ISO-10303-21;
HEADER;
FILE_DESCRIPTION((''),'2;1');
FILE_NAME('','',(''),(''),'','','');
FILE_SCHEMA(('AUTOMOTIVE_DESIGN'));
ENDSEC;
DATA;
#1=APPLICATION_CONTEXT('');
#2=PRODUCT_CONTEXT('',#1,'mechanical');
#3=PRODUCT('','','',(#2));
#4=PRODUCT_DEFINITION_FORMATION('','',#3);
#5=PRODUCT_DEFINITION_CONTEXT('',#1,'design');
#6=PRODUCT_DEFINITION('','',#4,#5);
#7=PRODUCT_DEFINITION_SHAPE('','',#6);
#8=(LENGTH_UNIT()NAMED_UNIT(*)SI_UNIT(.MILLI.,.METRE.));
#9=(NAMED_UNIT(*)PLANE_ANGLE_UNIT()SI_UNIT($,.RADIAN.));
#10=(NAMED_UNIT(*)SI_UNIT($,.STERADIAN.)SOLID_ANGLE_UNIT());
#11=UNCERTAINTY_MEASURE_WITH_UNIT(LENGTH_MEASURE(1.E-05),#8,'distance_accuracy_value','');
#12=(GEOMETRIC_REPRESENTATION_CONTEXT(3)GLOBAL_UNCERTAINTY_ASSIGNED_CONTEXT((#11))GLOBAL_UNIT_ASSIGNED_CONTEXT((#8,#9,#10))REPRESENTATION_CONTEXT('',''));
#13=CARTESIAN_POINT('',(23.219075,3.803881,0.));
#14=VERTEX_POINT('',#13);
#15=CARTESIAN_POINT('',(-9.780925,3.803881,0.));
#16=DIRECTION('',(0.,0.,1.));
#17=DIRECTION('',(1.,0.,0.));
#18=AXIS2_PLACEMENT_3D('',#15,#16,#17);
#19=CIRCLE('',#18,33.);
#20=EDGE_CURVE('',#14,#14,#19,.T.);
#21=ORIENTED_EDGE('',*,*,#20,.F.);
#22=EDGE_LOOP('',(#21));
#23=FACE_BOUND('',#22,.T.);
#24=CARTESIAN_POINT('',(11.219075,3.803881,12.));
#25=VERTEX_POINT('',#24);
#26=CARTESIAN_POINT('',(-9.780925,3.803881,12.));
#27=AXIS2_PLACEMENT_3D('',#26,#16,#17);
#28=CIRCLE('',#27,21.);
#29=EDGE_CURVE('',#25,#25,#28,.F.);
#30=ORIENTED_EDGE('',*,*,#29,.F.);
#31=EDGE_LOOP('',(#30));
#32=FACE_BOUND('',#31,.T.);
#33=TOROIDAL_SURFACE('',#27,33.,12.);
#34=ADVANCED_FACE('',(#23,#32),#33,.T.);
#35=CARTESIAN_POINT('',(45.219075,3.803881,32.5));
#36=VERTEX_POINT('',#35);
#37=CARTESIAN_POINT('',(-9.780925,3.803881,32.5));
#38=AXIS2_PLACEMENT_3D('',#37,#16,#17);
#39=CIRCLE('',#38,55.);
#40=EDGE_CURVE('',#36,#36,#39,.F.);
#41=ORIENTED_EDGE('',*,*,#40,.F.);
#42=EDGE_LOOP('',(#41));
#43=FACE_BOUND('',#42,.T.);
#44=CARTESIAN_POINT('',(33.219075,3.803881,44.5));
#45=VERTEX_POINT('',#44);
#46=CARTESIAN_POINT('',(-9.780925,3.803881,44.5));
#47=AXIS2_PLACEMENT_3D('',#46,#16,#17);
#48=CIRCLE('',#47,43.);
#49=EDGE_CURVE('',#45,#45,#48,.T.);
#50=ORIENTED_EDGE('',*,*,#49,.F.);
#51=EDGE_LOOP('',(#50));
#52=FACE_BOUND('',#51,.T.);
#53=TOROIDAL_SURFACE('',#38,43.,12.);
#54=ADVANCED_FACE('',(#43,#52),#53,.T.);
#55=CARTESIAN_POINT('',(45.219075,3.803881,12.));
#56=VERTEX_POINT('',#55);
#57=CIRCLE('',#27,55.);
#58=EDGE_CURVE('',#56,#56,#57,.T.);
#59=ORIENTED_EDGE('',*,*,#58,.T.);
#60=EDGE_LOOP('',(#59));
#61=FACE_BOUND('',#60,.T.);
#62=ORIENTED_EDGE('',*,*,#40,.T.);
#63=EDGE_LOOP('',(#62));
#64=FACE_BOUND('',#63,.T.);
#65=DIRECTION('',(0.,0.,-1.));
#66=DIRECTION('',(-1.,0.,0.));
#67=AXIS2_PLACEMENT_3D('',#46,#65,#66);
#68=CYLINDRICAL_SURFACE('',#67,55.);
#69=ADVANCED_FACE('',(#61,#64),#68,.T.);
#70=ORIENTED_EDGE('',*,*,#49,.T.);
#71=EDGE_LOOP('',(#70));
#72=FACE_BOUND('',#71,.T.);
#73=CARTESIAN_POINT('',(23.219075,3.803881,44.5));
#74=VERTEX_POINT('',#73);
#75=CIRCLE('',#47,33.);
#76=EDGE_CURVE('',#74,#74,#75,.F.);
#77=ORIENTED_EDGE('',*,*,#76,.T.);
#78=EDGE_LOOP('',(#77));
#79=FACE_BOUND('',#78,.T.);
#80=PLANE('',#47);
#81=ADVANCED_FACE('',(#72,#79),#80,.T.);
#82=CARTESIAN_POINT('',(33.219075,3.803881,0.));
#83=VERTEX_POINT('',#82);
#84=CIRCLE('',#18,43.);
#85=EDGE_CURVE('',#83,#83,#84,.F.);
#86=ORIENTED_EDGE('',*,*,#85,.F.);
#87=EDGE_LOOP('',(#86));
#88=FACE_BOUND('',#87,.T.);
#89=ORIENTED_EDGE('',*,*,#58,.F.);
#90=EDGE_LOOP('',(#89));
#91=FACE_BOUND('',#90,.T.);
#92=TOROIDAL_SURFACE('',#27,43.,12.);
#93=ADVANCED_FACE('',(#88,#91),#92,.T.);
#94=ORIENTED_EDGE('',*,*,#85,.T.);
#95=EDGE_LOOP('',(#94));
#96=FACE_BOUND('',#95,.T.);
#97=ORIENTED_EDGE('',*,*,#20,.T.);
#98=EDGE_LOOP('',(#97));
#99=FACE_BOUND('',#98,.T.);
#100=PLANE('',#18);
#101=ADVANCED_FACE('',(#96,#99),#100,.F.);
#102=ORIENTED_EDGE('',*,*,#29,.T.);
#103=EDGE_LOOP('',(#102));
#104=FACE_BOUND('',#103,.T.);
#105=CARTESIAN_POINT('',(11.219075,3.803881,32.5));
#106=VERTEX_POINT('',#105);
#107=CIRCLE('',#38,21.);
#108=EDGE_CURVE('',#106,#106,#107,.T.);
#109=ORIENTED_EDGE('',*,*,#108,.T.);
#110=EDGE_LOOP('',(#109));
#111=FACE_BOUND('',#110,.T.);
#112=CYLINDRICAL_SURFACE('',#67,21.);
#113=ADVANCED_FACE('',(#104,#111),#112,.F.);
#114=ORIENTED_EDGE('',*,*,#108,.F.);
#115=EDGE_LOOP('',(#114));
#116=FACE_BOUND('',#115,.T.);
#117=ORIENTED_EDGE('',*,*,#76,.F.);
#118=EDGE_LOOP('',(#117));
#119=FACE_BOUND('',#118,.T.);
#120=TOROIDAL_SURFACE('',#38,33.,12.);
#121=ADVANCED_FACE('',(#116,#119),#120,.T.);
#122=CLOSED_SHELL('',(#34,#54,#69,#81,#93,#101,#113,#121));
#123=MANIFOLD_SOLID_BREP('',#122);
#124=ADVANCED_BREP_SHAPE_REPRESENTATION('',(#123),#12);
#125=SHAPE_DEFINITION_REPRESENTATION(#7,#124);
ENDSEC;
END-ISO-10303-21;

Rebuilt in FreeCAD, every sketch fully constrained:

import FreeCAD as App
import Part
import Sketcher


def edges_at(feature, points):
    """Names of the edges that pass closest to the given points."""
    edges = feature.Shape.Edges
    near = lambda p: min(range(len(edges)), key=lambda i: edges[i].distToShape(Part.Vertex(*p))[0])
    return sorted({f"Edge{near(p) + 1}" for p in points})

doc = App.newDocument("Part")
body = doc.addObject("PartDesign::Body", "Body")

sketch1 = body.newObject("Sketcher::SketchObject", "Sketch")
sketch1.AttachmentSupport = (doc.getObject("XY_Plane"), [""])
sketch1.MapMode = "FlatFace"
sketch1.addGeometry([
    Part.Circle(App.Vector(-10, 4, 0), App.Vector(0, 0, 1), 55),
    Part.Circle(App.Vector(-10, 4, 0), App.Vector(0, 0, 1), 21),
], False)
sketch1.addConstraint([
    Sketcher.Constraint("Coincident", 1, 3, 0, 3),
    Sketcher.Constraint("Diameter", 0, 110.0),
    Sketcher.Constraint("Diameter", 1, 42.0),
    Sketcher.Constraint("DistanceY", -1, 1, 0, 3, 3.803881),
    Sketcher.Constraint("DistanceX", 0, 3, -1, 1, 9.780925),
])
pad1 = body.newObject("PartDesign::Pad", "Pad")
pad1.Profile = sketch1
pad1.Length = 44.5
doc.recompute()

fillet = body.newObject("PartDesign::Fillet", "Fillet")
fillet.Base = (pad1, edges_at(pad1, [
    (-64.781, 3.804, 0),
    (-64.781, 3.804, 44.5),
    (-30.781, 3.804, 0),
    (-30.781, 3.804, 44.5),
]))
fillet.Radius = 12

doc.recompute()
